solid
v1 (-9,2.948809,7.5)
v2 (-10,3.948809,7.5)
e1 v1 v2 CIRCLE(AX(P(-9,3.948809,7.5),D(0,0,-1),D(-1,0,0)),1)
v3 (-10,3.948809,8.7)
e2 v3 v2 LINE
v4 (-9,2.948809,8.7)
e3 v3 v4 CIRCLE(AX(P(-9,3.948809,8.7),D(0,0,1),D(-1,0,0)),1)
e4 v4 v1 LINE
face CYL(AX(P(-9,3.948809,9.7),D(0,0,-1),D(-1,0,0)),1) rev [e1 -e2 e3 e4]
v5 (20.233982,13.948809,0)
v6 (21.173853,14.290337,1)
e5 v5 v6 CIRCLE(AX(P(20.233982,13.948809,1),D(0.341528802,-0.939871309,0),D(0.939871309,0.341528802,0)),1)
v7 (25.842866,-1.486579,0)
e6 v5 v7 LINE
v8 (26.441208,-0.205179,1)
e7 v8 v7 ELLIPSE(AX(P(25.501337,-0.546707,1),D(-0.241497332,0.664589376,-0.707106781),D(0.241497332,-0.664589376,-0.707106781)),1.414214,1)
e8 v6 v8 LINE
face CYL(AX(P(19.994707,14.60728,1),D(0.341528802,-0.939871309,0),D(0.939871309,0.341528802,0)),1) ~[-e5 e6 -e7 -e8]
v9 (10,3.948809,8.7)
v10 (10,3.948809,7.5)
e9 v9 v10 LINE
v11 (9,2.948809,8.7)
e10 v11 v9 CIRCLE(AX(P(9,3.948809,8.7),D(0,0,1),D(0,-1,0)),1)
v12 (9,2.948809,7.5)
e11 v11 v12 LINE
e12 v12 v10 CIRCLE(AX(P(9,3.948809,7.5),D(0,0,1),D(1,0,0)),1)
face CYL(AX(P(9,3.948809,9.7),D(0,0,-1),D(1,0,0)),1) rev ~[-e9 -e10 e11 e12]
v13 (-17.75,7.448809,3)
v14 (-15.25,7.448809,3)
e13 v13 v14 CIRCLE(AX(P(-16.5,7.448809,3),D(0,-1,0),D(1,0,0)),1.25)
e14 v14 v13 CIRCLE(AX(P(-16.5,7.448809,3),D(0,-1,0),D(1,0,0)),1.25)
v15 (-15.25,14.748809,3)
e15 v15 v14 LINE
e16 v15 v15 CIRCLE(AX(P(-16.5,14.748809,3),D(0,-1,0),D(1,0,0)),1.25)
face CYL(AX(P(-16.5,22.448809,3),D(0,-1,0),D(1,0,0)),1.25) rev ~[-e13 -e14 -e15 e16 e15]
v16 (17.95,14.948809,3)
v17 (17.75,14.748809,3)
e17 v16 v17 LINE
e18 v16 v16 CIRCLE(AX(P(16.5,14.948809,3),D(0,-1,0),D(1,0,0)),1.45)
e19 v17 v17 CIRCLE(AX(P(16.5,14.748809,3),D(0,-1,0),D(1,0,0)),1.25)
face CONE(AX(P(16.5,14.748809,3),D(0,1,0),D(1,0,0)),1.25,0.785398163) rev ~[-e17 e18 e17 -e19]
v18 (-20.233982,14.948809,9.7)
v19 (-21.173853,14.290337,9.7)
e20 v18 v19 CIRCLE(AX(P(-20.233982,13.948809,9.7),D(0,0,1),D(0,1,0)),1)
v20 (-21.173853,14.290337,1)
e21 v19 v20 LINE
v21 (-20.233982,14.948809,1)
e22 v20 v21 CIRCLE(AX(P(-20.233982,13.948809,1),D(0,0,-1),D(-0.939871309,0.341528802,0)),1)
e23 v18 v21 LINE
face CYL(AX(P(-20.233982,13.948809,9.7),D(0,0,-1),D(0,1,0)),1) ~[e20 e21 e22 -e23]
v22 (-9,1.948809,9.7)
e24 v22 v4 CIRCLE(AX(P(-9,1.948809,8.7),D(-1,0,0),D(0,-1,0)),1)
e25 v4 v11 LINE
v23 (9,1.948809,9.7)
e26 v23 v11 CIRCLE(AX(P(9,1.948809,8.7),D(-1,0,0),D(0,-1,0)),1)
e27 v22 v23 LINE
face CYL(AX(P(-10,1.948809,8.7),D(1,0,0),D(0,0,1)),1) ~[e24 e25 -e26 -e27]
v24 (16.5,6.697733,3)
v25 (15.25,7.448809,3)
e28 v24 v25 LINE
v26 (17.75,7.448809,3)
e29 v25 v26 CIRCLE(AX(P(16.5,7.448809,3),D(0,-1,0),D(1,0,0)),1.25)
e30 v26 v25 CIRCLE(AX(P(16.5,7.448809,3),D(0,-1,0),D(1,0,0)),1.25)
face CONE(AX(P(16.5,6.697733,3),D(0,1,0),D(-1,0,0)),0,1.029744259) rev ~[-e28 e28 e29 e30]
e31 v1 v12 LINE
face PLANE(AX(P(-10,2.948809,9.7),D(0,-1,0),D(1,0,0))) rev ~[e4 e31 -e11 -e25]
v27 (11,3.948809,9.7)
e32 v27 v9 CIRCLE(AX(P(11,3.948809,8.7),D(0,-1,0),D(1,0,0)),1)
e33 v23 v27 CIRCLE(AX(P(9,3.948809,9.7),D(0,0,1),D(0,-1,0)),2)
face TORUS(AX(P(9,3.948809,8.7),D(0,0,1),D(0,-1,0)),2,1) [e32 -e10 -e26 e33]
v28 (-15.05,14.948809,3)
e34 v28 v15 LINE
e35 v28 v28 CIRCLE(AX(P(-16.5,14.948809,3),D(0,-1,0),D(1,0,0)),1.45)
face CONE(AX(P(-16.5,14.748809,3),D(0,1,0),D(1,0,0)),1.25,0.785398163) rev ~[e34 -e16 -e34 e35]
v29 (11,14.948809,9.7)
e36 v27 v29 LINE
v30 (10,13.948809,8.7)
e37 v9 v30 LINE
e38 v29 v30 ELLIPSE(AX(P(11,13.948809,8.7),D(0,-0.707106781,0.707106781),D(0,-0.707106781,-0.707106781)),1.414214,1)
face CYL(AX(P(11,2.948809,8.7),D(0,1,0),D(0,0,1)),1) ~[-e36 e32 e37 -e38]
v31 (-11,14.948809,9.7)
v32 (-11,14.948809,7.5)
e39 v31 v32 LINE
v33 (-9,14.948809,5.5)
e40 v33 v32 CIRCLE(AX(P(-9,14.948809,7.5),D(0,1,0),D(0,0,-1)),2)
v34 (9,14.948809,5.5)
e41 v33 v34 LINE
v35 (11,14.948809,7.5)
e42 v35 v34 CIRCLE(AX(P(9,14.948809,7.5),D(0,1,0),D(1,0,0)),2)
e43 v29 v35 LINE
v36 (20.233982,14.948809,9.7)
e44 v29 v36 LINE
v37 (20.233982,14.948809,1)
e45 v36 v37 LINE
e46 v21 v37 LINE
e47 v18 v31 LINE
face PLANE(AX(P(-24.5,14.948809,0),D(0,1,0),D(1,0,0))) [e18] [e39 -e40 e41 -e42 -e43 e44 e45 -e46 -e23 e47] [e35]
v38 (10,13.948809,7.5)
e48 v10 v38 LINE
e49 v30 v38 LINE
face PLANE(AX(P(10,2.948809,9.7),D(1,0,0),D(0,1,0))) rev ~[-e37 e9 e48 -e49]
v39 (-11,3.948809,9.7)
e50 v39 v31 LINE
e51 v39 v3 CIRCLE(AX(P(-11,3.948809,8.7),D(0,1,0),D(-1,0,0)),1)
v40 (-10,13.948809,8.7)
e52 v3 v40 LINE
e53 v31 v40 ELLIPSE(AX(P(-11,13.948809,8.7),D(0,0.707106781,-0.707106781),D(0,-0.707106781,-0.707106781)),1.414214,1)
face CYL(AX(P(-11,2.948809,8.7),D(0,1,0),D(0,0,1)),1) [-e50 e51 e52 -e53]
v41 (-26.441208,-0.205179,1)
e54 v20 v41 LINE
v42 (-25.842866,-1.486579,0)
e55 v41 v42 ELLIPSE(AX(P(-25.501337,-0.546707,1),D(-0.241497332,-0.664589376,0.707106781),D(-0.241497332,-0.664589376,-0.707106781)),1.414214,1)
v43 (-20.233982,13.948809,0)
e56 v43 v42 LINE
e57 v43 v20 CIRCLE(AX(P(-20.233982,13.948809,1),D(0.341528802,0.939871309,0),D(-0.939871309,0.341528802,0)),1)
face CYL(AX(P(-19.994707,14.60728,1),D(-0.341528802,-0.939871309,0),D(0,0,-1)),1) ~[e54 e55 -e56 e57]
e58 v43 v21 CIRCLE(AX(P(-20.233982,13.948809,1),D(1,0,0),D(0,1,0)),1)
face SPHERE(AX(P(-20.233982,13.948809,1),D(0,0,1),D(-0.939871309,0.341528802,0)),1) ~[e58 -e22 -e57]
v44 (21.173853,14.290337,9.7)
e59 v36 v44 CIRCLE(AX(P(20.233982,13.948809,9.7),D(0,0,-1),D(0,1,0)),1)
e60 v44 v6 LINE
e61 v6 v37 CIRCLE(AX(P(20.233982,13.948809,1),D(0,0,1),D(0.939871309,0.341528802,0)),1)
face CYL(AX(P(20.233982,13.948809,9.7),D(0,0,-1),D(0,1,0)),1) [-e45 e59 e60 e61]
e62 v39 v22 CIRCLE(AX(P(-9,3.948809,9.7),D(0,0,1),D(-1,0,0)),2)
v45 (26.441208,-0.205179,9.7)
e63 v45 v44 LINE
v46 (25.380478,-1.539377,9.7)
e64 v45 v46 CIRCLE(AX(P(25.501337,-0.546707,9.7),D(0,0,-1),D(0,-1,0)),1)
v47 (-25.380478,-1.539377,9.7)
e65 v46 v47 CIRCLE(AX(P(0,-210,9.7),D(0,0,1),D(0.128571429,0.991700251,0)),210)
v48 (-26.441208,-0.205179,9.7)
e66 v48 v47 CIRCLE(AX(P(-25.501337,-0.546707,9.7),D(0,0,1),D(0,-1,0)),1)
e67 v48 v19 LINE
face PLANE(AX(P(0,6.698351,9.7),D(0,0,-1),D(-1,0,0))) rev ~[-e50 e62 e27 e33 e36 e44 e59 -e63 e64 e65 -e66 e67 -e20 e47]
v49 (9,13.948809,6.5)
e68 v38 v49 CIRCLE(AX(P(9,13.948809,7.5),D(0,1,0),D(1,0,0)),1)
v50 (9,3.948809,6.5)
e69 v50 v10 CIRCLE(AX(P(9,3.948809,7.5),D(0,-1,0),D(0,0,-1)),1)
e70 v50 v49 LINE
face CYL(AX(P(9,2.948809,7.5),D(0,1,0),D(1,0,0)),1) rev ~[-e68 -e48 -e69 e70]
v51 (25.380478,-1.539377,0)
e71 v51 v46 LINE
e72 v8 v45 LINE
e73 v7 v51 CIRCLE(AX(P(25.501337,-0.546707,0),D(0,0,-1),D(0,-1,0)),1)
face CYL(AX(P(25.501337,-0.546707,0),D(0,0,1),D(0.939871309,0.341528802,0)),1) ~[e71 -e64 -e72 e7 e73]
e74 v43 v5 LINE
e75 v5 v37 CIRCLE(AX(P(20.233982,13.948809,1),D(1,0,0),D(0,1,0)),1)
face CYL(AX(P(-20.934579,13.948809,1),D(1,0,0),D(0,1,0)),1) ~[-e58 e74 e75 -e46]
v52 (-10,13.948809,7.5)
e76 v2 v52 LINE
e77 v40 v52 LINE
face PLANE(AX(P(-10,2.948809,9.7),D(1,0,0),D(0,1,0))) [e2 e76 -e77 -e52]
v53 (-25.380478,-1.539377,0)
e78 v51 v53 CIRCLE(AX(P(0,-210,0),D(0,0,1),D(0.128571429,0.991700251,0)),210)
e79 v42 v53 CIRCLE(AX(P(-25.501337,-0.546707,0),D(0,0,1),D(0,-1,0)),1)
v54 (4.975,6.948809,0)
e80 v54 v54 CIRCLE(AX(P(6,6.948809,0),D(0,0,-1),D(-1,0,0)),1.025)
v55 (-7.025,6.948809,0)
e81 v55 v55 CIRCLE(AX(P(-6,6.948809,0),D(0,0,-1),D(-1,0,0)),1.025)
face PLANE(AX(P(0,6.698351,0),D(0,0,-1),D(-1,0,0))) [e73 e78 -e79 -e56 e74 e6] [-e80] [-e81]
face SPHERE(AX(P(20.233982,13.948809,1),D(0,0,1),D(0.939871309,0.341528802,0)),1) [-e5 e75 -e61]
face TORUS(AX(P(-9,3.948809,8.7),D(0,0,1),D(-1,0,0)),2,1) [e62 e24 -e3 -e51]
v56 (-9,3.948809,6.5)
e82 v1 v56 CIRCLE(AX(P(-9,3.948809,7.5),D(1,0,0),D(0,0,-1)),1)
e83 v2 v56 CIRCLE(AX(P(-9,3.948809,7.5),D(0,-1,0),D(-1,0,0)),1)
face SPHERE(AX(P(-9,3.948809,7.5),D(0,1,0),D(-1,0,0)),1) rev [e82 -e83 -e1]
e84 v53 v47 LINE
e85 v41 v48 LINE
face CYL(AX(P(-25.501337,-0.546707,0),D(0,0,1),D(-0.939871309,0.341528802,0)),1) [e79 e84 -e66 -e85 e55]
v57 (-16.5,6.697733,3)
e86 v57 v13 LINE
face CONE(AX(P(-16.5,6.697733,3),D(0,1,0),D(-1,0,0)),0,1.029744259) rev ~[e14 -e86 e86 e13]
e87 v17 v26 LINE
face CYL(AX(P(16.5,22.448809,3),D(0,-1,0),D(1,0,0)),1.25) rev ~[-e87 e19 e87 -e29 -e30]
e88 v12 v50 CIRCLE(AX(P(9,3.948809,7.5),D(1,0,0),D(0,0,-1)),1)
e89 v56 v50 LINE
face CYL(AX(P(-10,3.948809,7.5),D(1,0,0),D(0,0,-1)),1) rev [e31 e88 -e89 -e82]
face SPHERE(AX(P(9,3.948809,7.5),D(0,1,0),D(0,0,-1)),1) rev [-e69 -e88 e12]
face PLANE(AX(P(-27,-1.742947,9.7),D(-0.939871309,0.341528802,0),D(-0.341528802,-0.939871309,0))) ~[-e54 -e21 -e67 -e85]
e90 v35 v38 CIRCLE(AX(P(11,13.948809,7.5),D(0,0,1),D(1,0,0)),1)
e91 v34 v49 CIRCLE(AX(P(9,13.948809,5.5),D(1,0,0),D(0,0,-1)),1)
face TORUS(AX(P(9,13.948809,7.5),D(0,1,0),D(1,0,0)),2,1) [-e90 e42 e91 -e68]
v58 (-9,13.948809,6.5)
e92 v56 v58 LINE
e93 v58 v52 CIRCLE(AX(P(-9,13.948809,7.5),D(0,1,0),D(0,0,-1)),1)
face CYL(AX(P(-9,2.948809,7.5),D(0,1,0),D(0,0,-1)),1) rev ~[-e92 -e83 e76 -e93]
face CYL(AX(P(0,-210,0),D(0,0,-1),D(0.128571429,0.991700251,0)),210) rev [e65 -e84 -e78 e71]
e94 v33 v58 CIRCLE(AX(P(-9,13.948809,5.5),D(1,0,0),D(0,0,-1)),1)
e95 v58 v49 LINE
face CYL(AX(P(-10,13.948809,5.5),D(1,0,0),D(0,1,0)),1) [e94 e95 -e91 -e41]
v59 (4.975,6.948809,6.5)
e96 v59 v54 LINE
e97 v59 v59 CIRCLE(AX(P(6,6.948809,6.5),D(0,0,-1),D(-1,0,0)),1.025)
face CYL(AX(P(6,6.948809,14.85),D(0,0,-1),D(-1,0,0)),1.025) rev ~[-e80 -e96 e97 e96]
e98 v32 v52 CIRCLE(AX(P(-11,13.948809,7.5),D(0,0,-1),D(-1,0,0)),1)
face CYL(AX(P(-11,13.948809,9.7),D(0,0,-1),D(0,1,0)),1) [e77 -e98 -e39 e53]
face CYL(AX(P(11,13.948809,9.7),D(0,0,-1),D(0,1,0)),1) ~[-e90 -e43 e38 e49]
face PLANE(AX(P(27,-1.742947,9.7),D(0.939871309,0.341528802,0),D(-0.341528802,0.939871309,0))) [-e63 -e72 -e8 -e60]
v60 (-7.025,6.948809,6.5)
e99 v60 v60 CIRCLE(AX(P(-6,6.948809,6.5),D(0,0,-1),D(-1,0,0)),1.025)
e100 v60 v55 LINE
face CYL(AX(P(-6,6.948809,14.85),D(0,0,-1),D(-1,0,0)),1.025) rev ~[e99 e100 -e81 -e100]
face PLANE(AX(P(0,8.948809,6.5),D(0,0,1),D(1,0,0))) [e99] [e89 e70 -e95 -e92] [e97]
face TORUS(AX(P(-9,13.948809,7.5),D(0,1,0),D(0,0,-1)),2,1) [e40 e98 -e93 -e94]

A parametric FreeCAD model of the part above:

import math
import FreeCAD as App
import Part
import Sketcher
Q = App.Units.Quantity


def edges_at(feature, points):
    """Names of the edges that pass closest to the given points."""
    edges = feature.Shape.Edges
    near = lambda p: min(range(len(edges)), key=lambda i: edges[i].distToShape(Part.Vertex(*p))[0])
    return sorted({f"Edge{near(p) + 1}" for p in points})


def add_polygon(sketch, points):
    """Adds a closed chain of lines whose ends are joined by coincident constraints."""
    first, n = sketch.GeometryCount, len(points)
    for a, b in zip(points, points[1:] + points[:1]):
        sketch.addGeometry(Part.LineSegment(App.Vector(*a, 0), App.Vector(*b, 0)), False)
    for i in range(n):
        sketch.addConstraint(Sketcher.Constraint("Coincident", first + i, 2, first + (i + 1) % n, 1))

doc = App.newDocument("Part")
body = doc.addObject("PartDesign::Body", "Body")

sketch1 = body.newObject("Sketcher::SketchObject", "Sketch")
sketch1.AttachmentSupport = (doc.getObject("XY_Plane"), [""])
sketch1.MapMode = "FlatFace"
sketch1.addGeometry(Part.LineSegment(App.Vector(27, -1.742947, 0), App.Vector(24.5, 14.948809, 0)), False)
sketch1.addGeometry(Part.LineSegment(App.Vector(24.5, 14.948809, 0), App.Vector(-24.5, 14.948809, 0)), False)
sketch1.addGeometry(Part.LineSegment(App.Vector(-24.5, 14.948809, 0), App.Vector(-27, -1.742947, 0)), False)
sketch1.addGeometry(Part.ArcOfCircle(Part.Circle(App.Vector(0, -210, 0), App.Vector(0, 0, 1), 210), math.radians(82.612952), math.radians(97.387048)), False)
sketch1.addGeometry(Part.Circle(App.Vector(6, 6.948809, 0), App.Vector(0, 0, 1), 0.5), False)
sketch1.addGeometry(Part.Circle(App.Vector(-6, 6.948809, 0), App.Vector(0, 0, 1), 0.5), False)
sketch1.addConstraint(Sketcher.Constraint("Coincident", 0, 2, 1, 1))
sketch1.addConstraint(Sketcher.Constraint("Coincident", 1, 2, 2, 1))
sketch1.addConstraint(Sketcher.Constraint("Coincident", 2, 2, 3, 2))
sketch1.addConstraint(Sketcher.Constraint("Coincident", 3, 1, 0, 1))
sketch1.addConstraint(Sketcher.Constraint("Horizontal", 1))
sketch1.addConstraint(Sketcher.Constraint("Equal", 4, 5))
sketch1.addConstraint(Sketcher.Constraint("Symmetric", 4, 3, 5, 3, -2))
sketch1.addConstraint(Sketcher.Constraint("Symmetric", 2, 2, 3, 1, -2))
sketch1.addConstraint(Sketcher.Constraint("Equal", 0, 2))
sketch1.addConstraint(Sketcher.Constraint("Diameter", 4, Q("1 mm")))
sketch1.addConstraint(Sketcher.Constraint("Radius", 3, Q("210 mm")))
sketch1.addConstraint(Sketcher.Constraint("DistanceX", 1, 2, 1, 1, Q("49 mm")))
sketch1.addConstraint(Sketcher.Constraint("DistanceY", 3, 3, -1, 1, Q("210 mm")))
sketch1.addConstraint(Sketcher.Constraint("DistanceX", -1, 1, 4, 3, Q("6 mm")))
sketch1.addConstraint(Sketcher.Constraint("DistanceX", 2, 2, -1, 1, Q("27 mm")))
sketch1.addConstraint(Sketcher.Constraint("DistanceY", 4, 3, 0, 2, Q("8 mm")))
sketch1.addConstraint(Sketcher.Constraint("DistanceY", -1, 1, 4, 3, Q("6.948809 mm")))
pad1 = body.newObject("PartDesign::Pad", "Pad")
pad1.Profile = sketch1
pad1.Length = 9.7

sketch2 = body.newObject("Sketcher::SketchObject", "Sketch001")
sketch2.AttachmentSupport = (doc.getObject("XZ_Plane"), [""])
sketch2.MapMode = "FlatFace"
sketch2.AttachmentOffset = App.Placement(App.Vector(0, 0, -14.948809), App.Rotation())
sketch2.addGeometry(Part.Circle(App.Vector(16.5, 3, 0), App.Vector(0, 0, 1), 1.25), False)
sketch2.addGeometry(Part.Circle(App.Vector(-16.5, 3, 0), App.Vector(0, 0, 1), 1.25), False)
sketch2.addConstraint(Sketcher.Constraint("Equal", 0, 1))
sketch2.addConstraint(Sketcher.Constraint("Symmetric", 0, 3, 1, 3, -2))
sketch2.addConstraint(Sketcher.Constraint("Diameter", 0, Q("2.5 mm")))
sketch2.addConstraint(Sketcher.Constraint("DistanceY", -1, 1, 0, 3, Q("3 mm")))
sketch2.addConstraint(Sketcher.Constraint("DistanceX", 1, 3, 0, 3, Q("33 mm")))
doc.recompute()
hole = body.newObject("PartDesign::Hole", "Hole")
hole.Profile = sketch2
hole.ThreadType = "None"
hole.Diameter = 2.5
hole.DepthType = "Dimension"
hole.Depth = 7.5
hole.DrillPoint = "Angled"
hole.DrillPointAngle = 118
hole.Reversed = True

sketch3 = body.newObject("Sketcher::SketchObject", "Sketch002")
sketch3.AttachmentSupport = (doc.getObject("XY_Plane"), [""])
sketch3.MapMode = "FlatFace"
sketch3.AttachmentOffset = App.Placement(App.Vector(0, 0, 9.7), App.Rotation())
add_polygon(sketch3, [(20.914837, 15.003136), (27, -1.742947), (24.5, 14.948809)])
sketch3.addConstraint(Sketcher.Constraint("DistanceX", -1, 1, 0, 2, Q("27 mm")))
sketch3.addConstraint(Sketcher.Constraint("DistanceX", -1, 1, 1, 2, Q("24.5 mm")))
sketch3.addConstraint(Sketcher.Constraint("Distance", 0, Q("17.817421 mm")))
sketch3.addConstraint(Sketcher.Constraint("DistanceY", -1, 1, 1, 2, Q("14.948809 mm")))
sketch3.addConstraint(Sketcher.Constraint("Distance", 1, Q("16.877936 mm")))
sketch3.addConstraint(Sketcher.Constraint("Distance", 2, Q("3.585574 mm")))
pocket1 = body.newObject("PartDesign::Pocket", "Pocket")
pocket1.Profile = sketch3
pocket1.Type = "ThroughAll"
doc.recompute()

mirrored = body.newObject("PartDesign::Mirrored", "Mirrored")
mirrored.Originals = [pocket1]
mirrored.MirrorPlane = (doc.getObject("YZ_Plane"), [""])
body.Tip = mirrored
doc.recompute()

chamfer = body.newObject("PartDesign::Chamfer", "Chamfer")
chamfer.Base = (mirrored, edges_at(mirrored, [
    (-6.5, 6.949, 0),
    (-6.5, 6.949, 9.7),
    (5.5, 6.949, 0),
    (5.5, 6.949, 9.7),
]))
chamfer.Size = 0.5
doc.recompute()

chamfer2 = body.newObject("PartDesign::Chamfer", "Chamfer001")
chamfer2.Base = (chamfer, edges_at(chamfer, [(-17.75, 14.949, 3), (15.25, 14.949, 3)]))
chamfer2.Size = 0.2

sketch4 = body.newObject("Sketcher::SketchObject", "Sketch003")
sketch4.AttachmentSupport = (doc.getObject("XY_Plane"), [""])
sketch4.MapMode = "FlatFace"
sketch4.AttachmentOffset = App.Placement(App.Vector(0, 0, 9.7), App.Rotation())
add_polygon(sketch4, [(-10, 14.948809), (-10, 2.948809), (10, 2.948809), (10, 14.948809)])
sketch4.addConstraint(Sketcher.Constraint("Vertical", 0))
sketch4.addConstraint(Sketcher.Constraint("Horizontal", 1))
sketch4.addConstraint(Sketcher.Constraint("Vertical", 2))
sketch4.addConstraint(Sketcher.Constraint("Horizontal", 3))
sketch4.addConstraint(Sketcher.Constraint("DistanceX", 1, 1, 1, 2, Q("20 mm")))
sketch4.addConstraint(Sketcher.Constraint("DistanceY", 0, 2, 0, 1, Q("12 mm")))
sketch4.addConstraint(Sketcher.Constraint("DistanceX", 0, 2, -1, 1, Q("10 mm")))
sketch4.addConstraint(Sketcher.Constraint("DistanceY", -1, 1, 0, 2, Q("2.948809 mm")))
pocket2 = body.newObject("PartDesign::Pocket", "Pocket001")
pocket2.Profile = sketch4
pocket2.Length = 3.2
doc.recompute()

fillet = body.newObject("PartDesign::Fillet", "Fillet")
fillet.Base = (pocket2, edges_at(pocket2, [
    (-10, 8.949, 6.5),
    (-10, 2.949, 8.1),
    (0, 14.949, 6.5),
    (-10, 14.949, 8.1),
    (10, 8.949, 6.5),
    (10, 14.949, 8.1),
    (0, 2.949, 6.5),
    (10, 2.949, 8.1),
    (-10, 8.949, 9.7),
    (0, 2.949, 9.7),
    (10, 8.949, 9.7),
]))
fillet.Radius = 1
doc.recompute()

fillet2 = body.newObject("PartDesign::Fillet", "Fillet001")
fillet2.Base = (fillet, edges_at(fillet, [
    (27, -1.743, 4.85),
    (-27, -1.743, 4.85),
    (0, 14.949, 0),
    (20.935, 14.949, 4.85),
    (23.967, 6.603, 0),
    (-20.935, 14.949, 4.85),
    (-23.967, 6.603, 0),
]))
fillet2.Radius = 1

sketch5 = body.newObject("Sketcher::SketchObject", "Sketch004")
sketch5.AttachmentSupport = (doc.getObject("XY_Plane"), [""])
sketch5.MapMode = "FlatFace"
sketch5.AttachmentOffset = App.Placement(App.Vector(0, 0, 6.5), App.Rotation())
sketch5.addGeometry(Part.Circle(App.Vector(6, 6.948809, 0), App.Vector(0, 0, 1), 1.025), False)
sketch5.addGeometry(Part.Circle(App.Vector(-6, 6.948809, 0), App.Vector(0, 0, 1), 1.025), False)
sketch5.addConstraint(Sketcher.Constraint("Equal", 0, 1))
sketch5.addConstraint(Sketcher.Constraint("Symmetric", 0, 3, 1, 3, -2))
sketch5.addConstraint(Sketcher.Constraint("Diameter", 0, Q("2.05 mm")))
sketch5.addConstraint(Sketcher.Constraint("DistanceX", -1, 1, 0, 3, Q("6 mm")))
sketch5.addConstraint(Sketcher.Constraint("DistanceY", -1, 1, 0, 3, Q("6.948809 mm")))
doc.recompute()
hole2 = body.newObject("PartDesign::Hole", "Hole001")
hole2.Profile = sketch5
hole2.ThreadType = "None"
hole2.Diameter = 2.05
hole2.DepthType = "Dimension"
hole2.Depth = 8.35
hole2.DrillPoint = "Angled"
hole2.DrillPointAngle = 118

doc.recompute()
